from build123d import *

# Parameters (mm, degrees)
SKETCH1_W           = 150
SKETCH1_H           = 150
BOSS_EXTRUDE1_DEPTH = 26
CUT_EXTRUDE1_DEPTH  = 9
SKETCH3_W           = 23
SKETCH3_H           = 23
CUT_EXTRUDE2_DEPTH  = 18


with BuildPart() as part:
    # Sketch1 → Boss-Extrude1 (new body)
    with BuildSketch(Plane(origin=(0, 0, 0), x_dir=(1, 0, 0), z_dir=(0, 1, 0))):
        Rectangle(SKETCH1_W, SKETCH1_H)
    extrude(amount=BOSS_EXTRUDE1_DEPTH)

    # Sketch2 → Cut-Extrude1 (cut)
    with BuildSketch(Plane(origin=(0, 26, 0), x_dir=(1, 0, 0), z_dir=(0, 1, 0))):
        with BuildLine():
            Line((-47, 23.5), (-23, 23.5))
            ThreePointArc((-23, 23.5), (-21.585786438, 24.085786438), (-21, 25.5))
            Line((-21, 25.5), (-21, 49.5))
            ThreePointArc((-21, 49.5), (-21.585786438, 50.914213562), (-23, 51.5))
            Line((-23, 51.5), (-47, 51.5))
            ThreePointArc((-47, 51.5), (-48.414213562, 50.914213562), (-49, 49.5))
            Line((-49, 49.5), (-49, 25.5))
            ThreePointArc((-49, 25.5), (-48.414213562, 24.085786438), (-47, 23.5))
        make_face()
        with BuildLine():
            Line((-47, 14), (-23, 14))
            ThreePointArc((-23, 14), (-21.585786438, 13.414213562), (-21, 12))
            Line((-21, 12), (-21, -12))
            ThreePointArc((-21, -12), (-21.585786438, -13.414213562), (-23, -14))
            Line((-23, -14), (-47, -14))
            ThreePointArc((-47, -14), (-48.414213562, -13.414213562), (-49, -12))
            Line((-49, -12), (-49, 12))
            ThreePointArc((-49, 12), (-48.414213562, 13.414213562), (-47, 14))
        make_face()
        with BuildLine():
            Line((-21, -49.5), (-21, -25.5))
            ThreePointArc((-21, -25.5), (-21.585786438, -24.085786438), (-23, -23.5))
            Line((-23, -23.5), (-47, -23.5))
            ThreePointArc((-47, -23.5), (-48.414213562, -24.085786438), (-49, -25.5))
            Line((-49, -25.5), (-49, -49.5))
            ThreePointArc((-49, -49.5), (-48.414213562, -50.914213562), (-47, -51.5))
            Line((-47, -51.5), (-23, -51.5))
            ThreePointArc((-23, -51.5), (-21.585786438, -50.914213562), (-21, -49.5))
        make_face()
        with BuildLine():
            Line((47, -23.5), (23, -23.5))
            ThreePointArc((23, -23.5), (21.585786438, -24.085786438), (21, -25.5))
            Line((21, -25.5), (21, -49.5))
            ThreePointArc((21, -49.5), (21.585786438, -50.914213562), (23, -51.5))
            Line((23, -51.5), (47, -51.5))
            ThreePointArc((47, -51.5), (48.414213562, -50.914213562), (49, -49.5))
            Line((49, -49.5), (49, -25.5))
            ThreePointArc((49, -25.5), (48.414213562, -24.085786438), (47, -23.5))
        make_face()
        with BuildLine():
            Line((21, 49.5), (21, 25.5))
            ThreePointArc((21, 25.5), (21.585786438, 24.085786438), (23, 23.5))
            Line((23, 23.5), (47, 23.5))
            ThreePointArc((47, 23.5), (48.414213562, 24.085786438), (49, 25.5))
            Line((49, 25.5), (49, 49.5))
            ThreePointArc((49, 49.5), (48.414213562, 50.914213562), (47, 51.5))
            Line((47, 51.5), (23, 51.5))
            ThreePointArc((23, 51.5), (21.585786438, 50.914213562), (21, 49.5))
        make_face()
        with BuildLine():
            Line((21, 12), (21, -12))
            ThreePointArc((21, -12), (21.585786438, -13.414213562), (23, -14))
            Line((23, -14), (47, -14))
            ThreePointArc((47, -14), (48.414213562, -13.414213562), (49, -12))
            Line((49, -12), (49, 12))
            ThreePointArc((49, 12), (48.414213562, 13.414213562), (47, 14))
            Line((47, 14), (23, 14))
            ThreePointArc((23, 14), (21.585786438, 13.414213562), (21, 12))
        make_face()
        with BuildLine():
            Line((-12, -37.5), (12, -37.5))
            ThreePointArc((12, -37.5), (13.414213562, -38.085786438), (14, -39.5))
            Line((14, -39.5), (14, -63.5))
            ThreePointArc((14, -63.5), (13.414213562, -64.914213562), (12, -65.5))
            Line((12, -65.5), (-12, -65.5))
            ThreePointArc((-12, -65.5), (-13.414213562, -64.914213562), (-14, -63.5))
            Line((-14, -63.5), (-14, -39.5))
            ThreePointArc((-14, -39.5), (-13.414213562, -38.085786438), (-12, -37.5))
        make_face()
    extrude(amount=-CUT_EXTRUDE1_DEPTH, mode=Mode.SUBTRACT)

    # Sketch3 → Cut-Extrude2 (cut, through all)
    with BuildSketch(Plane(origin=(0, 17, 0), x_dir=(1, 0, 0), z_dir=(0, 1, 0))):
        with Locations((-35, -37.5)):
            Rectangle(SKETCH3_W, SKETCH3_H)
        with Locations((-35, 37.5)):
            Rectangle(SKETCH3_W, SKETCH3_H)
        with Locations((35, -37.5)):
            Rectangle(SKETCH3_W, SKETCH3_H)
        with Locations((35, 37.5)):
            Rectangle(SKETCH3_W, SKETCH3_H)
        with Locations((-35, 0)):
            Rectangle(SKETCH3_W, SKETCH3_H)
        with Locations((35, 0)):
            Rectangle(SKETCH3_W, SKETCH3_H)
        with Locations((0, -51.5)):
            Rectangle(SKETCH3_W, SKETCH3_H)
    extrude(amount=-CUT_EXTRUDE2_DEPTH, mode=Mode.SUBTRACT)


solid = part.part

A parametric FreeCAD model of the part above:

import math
import FreeCAD as App
import Part
import Sketcher
from FreeCAD import Vector

doc = App.newDocument("Part")
body = doc.addObject("PartDesign::Body", "Body")

# Sketch on XZ plane
sketch1 = body.newObject("Sketcher::SketchObject", "Sketch")
sketch1.AttachmentSupport = (doc.getObject("XZ_Plane"), [""])
sketch1.MapMode = "FlatFace"
sketch1.addGeometry([
    Part.LineSegment(Vector(-75, -75, 0), Vector(-75, 75, 0)),
    Part.LineSegment(Vector(-75, 75, 0), Vector(75, 75, 0)),
    Part.LineSegment(Vector(75, 75, 0), Vector(75, -75, 0)),
    Part.LineSegment(Vector(75, -75, 0), Vector(-75, -75, 0)),
], False)
sketch1.addConstraint([
    Sketcher.Constraint("Coincident", 0, 2, 1, 1),
    Sketcher.Constraint("Coincident", 1, 2, 2, 1),
    Sketcher.Constraint("Coincident", 2, 2, 3, 1),
    Sketcher.Constraint("Coincident", 3, 2, 0, 1),
    Sketcher.Constraint("Vertical", 0),
    Sketcher.Constraint("Horizontal", 1),
    Sketcher.Constraint("Vertical", 2),
    Sketcher.Constraint("Horizontal", 3),
    Sketcher.Constraint("Symmetric", 0, 2, 2, 2, -1, 1),
    Sketcher.Constraint("Equal", 3, 0),
    Sketcher.Constraint("DistanceX", 1, 1, 1, 2, 150.0),
])
pad1 = body.newObject("PartDesign::Pad", "Pad")
pad1.Profile = sketch1
pad1.Length = 26
pad1.Reversed = True

# Sketch on XZ plane
sketch2 = body.newObject("Sketcher::SketchObject", "Sketch001")
sketch2.AttachmentSupport = (doc.getObject("XZ_Plane"), [""])
sketch2.MapMode = "FlatFace"
sketch2.AttachmentOffset = App.Placement(Vector(0, 0, -26), App.Rotation())
sketch2.addGeometry([
    Part.LineSegment(Vector(-47, -23.5, 0), Vector(-23, -23.5, 0)),  # 0
    Part.ArcOfCircle(Part.Circle(Vector(-23, -25.5, 0), Vector(0, 0, 1), 2), math.radians(0), math.radians(90)),  # 1
    Part.LineSegment(Vector(-21, -25.5, 0), Vector(-21, -49.5, 0)),  # 2
    Part.ArcOfCircle(Part.Circle(Vector(-23, -49.5, 0), Vector(0, 0, 1), 2), math.radians(-90), math.radians(0)),  # 3
    Part.LineSegment(Vector(-23, -51.5, 0), Vector(-47, -51.5, 0)),  # 4
    Part.ArcOfCircle(Part.Circle(Vector(-47, -49.5, 0), Vector(0, 0, 1), 2), math.radians(-180), math.radians(-90)),  # 5
    Part.LineSegment(Vector(-49, -49.5, 0), Vector(-49, -25.5, 0)),  # 6
    Part.ArcOfCircle(Part.Circle(Vector(-47, -25.5, 0), Vector(0, 0, 1), 2), math.radians(90), math.radians(180)),  # 7
    Part.LineSegment(Vector(-23, -14, 0), Vector(-47, -14, 0)),  # 8
    Part.ArcOfCircle(Part.Circle(Vector(-47, -12, 0), Vector(0, 0, 1), 2), math.radians(-180), math.radians(-90)),  # 9
    Part.LineSegment(Vector(-49, -12, 0), Vector(-49, 12, 0)),  # 10
    Part.ArcOfCircle(Part.Circle(Vector(-47, 12, 0), Vector(0, 0, 1), 2), math.radians(90), math.radians(180)),  # 11
    Part.LineSegment(Vector(-47, 14, 0), Vector(-23, 14, 0)),  # 12
    Part.ArcOfCircle(Part.Circle(Vector(-23, 12, 0), Vector(0, 0, 1), 2), math.radians(0), math.radians(90)),  # 13
    Part.LineSegment(Vector(-21, 12, 0), Vector(-21, -12, 0)),  # 14
    Part.ArcOfCircle(Part.Circle(Vector(-23, -12, 0), Vector(0, 0, 1), 2), math.radians(-90), math.radians(0)),  # 15
    Part.LineSegment(Vector(-21, 49.5, 0), Vector(-21, 25.5, 0)),  # 16
    Part.ArcOfCircle(Part.Circle(Vector(-23, 25.5, 0), Vector(0, 0, 1), 2), math.radians(-90), math.radians(0)),  # 17
    Part.LineSegment(Vector(-23, 23.5, 0), Vector(-47, 23.5, 0)),  # 18
    Part.ArcOfCircle(Part.Circle(Vector(-47, 25.5, 0), Vector(0, 0, 1), 2), math.radians(-180), math.radians(-90)),  # 19
    Part.LineSegment(Vector(-49, 25.5, 0), Vector(-49, 49.5, 0)),  # 20
    Part.ArcOfCircle(Part.Circle(Vector(-47, 49.5, 0), Vector(0, 0, 1), 2), math.radians(90), math.radians(180)),  # 21
    Part.LineSegment(Vector(-47, 51.5, 0), Vector(-23, 51.5, 0)),  # 22
    Part.ArcOfCircle(Part.Circle(Vector(-23, 49.5, 0), Vector(0, 0, 1), 2), math.radians(0), math.radians(90)),  # 23
    Part.LineSegment(Vector(47, 23.5, 0), Vector(23, 23.5, 0)),  # 24
    Part.ArcOfCircle(Part.Circle(Vector(23, 25.5, 0), Vector(0, 0, 1), 2), math.radians(-180), math.radians(-90)),  # 25
    Part.LineSegment(Vector(21, 25.5, 0), Vector(21, 49.5, 0)),  # 26
    Part.ArcOfCircle(Part.Circle(Vector(23, 49.5, 0), Vector(0, 0, 1), 2), math.radians(90), math.radians(180)),  # 27
    Part.LineSegment(Vector(23, 51.5, 0), Vector(47, 51.5, 0)),  # 28
    Part.ArcOfCircle(Part.Circle(Vector(47, 49.5, 0), Vector(0, 0, 1), 2), math.radians(0), math.radians(90)),  # 29
    Part.LineSegment(Vector(49, 49.5, 0), Vector(49, 25.5, 0)),  # 30
    Part.ArcOfCircle(Part.Circle(Vector(47, 25.5, 0), Vector(0, 0, 1), 2), math.radians(-90), math.radians(0)),  # 31
    Part.LineSegment(Vector(21, -49.5, 0), Vector(21, -25.5, 0)),  # 32
    Part.ArcOfCircle(Part.Circle(Vector(23, -25.5, 0), Vector(0, 0, 1), 2), math.radians(90), math.radians(180)),  # 33
    Part.LineSegment(Vector(23, -23.5, 0), Vector(47, -23.5, 0)),  # 34
    Part.ArcOfCircle(Part.Circle(Vector(47, -25.5, 0), Vector(0, 0, 1), 2), math.radians(0), math.radians(90)),  # 35
    Part.LineSegment(Vector(49, -25.5, 0), Vector(49, -49.5, 0)),  # 36
    Part.ArcOfCircle(Part.Circle(Vector(47, -49.5, 0), Vector(0, 0, 1), 2), math.radians(-90), math.radians(0)),  # 37
    Part.LineSegment(Vector(47, -51.5, 0), Vector(23, -51.5, 0)),  # 38
    Part.ArcOfCircle(Part.Circle(Vector(23, -49.5, 0), Vector(0, 0, 1), 2), math.radians(-180), math.radians(-90)),  # 39
    Part.LineSegment(Vector(21, -12, 0), Vector(21, 12, 0)),  # 40
    Part.ArcOfCircle(Part.Circle(Vector(23, 12, 0), Vector(0, 0, 1), 2), math.radians(90), math.radians(180)),  # 41
    Part.LineSegment(Vector(23, 14, 0), Vector(47, 14, 0)),  # 42
    Part.ArcOfCircle(Part.Circle(Vector(47, 12, 0), Vector(0, 0, 1), 2), math.radians(0), math.radians(90)),  # 43
    Part.LineSegment(Vector(49, 12, 0), Vector(49, -12, 0)),  # 44
    Part.ArcOfCircle(Part.Circle(Vector(47, -12, 0), Vector(0, 0, 1), 2), math.radians(-90), math.radians(0)),  # 45
    Part.LineSegment(Vector(47, -14, 0), Vector(23, -14, 0)),  # 46
    Part.ArcOfCircle(Part.Circle(Vector(23, -12, 0), Vector(0, 0, 1), 2), math.radians(-180), math.radians(-90)),  # 47
    Part.LineSegment(Vector(12, 37.5, 0), Vector(-12, 37.5, 0)),  # 48
    Part.ArcOfCircle(Part.Circle(Vector(-12, 39.5, 0), Vector(0, 0, 1), 2), math.radians(-180), math.radians(-90)),  # 49
    Part.LineSegment(Vector(-14, 39.5, 0), Vector(-14, 63.5, 0)),  # 50
    Part.ArcOfCircle(Part.Circle(Vector(-12, 63.5, 0), Vector(0, 0, 1), 2), math.radians(90), math.radians(180)),  # 51
    Part.LineSegment(Vector(-12, 65.5, 0), Vector(12, 65.5, 0)),  # 52
    Part.ArcOfCircle(Part.Circle(Vector(12, 63.5, 0), Vector(0, 0, 1), 2), math.radians(0), math.radians(90)),  # 53
    Part.LineSegment(Vector(14, 63.5, 0), Vector(14, 39.5, 0)),  # 54
    Part.ArcOfCircle(Part.Circle(Vector(12, 39.5, 0), Vector(0, 0, 1), 2), math.radians(-90), math.radians(0)),  # 55
], False)
sketch2.addConstraint([
    Sketcher.Constraint("Tangent", 0, 2, 1, 2),
    Sketcher.Constraint("Tangent", 1, 1, 2, 1),
    Sketcher.Constraint("Tangent", 2, 2, 3, 2),
    Sketcher.Constraint("Tangent", 3, 1, 4, 1),
    Sketcher.Constraint("Tangent", 4, 2, 5, 2),
    Sketcher.Constraint("Tangent", 5, 1, 6, 1),
    Sketcher.Constraint("Tangent", 6, 2, 7, 2),
    Sketcher.Constraint("Tangent", 7, 1, 0, 1),
    Sketcher.Constraint("Tangent", 8, 2, 9, 2),
    Sketcher.Constraint("Tangent", 9, 1, 10, 1),
    Sketcher.Constraint("Tangent", 10, 2, 11, 2),
    Sketcher.Constraint("Tangent", 11, 1, 12, 1),
    Sketcher.Constraint("Tangent", 12, 2, 13, 2),
    Sketcher.Constraint("Tangent", 13, 1, 14, 1),
    Sketcher.Constraint("Tangent", 14, 2, 15, 2),
    Sketcher.Constraint("Tangent", 15, 1, 8, 1),
    Sketcher.Constraint("Tangent", 16, 2, 17, 2),
    Sketcher.Constraint("Tangent", 17, 1, 18, 1),
    Sketcher.Constraint("Tangent", 18, 2, 19, 2),
    Sketcher.Constraint("Tangent", 19, 1, 20, 1),
    Sketcher.Constraint("Tangent", 20, 2, 21, 2),
    Sketcher.Constraint("Tangent", 21, 1, 22, 1),
    Sketcher.Constraint("Tangent", 22, 2, 23, 2),
    Sketcher.Constraint("Tangent", 23, 1, 16, 1),
    Sketcher.Constraint("Tangent", 24, 2, 25, 2),
    Sketcher.Constraint("Tangent", 25, 1, 26, 1),
    Sketcher.Constraint("Tangent", 26, 2, 27, 2),
    Sketcher.Constraint("Tangent", 27, 1, 28, 1),
    Sketcher.Constraint("Tangent", 28, 2, 29, 2),
    Sketcher.Constraint("Tangent", 29, 1, 30, 1),
    Sketcher.Constraint("Tangent", 30, 2, 31, 2),
    Sketcher.Constraint("Tangent", 31, 1, 24, 1),
    Sketcher.Constraint("Tangent", 32, 2, 33, 2),
    Sketcher.Constraint("Tangent", 33, 1, 34, 1),
    Sketcher.Constraint("Tangent", 34, 2, 35, 2),
    Sketcher.Constraint("Tangent", 35, 1, 36, 1),
    Sketcher.Constraint("Tangent", 36, 2, 37, 2),
    Sketcher.Constraint("Tangent", 37, 1, 38, 1),
    Sketcher.Constraint("Tangent", 38, 2, 39, 2),
    Sketcher.Constraint("Tangent", 39, 1, 32, 1),
    Sketcher.Constraint("Tangent", 40, 2, 41, 2),
    Sketcher.Constraint("Tangent", 41, 1, 42, 1),
    Sketcher.Constraint("Tangent", 42, 2, 43, 2),
    Sketcher.Constraint("Tangent", 43, 1, 44, 1),
    Sketcher.Constraint("Tangent", 44, 2, 45, 2),
    Sketcher.Constraint("Tangent", 45, 1, 46, 1),
    Sketcher.Constraint("Tangent", 46, 2, 47, 2),
    Sketcher.Constraint("Tangent", 47, 1, 40, 1),
    Sketcher.Constraint("Tangent", 48, 2, 49, 2),
    Sketcher.Constraint("Tangent", 49, 1, 50, 1),
    Sketcher.Constraint("Tangent", 50, 2, 51, 2),
    Sketcher.Constraint("Tangent", 51, 1, 52, 1),
    Sketcher.Constraint("Tangent", 52, 2, 53, 2),
    Sketcher.Constraint("Tangent", 53, 1, 54, 1),
    Sketcher.Constraint("Tangent", 54, 2, 55, 2),
    Sketcher.Constraint("Tangent", 55, 1, 48, 1),
    Sketcher.Constraint("Horizontal", 0),
    Sketcher.Constraint("Vertical", 2),
    Sketcher.Constraint("Horizontal", 4),
    Sketcher.Constraint("Vertical", 6),
    Sketcher.Constraint("Horizontal", 8),
    Sketcher.Constraint("Vertical", 10),
    Sketcher.Constraint("Horizontal", 12),
    Sketcher.Constraint("Vertical", 14),
    Sketcher.Constraint("Vertical", 16),
    Sketcher.Constraint("Horizontal", 18),
    Sketcher.Constraint("Vertical", 20),
    Sketcher.Constraint("Horizontal", 22),
    Sketcher.Constraint("Horizontal", 24),
    Sketcher.Constraint("Vertical", 26),
    Sketcher.Constraint("Horizontal", 28),
    Sketcher.Constraint("Vertical", 30),
    Sketcher.Constraint("Vertical", 32),
    Sketcher.Constraint("Horizontal", 34),
    Sketcher.Constraint("Vertical", 36),
    Sketcher.Constraint("Horizontal", 38),
    Sketcher.Constraint("Vertical", 40),
    Sketcher.Constraint("Horizontal", 42),
    Sketcher.Constraint("Vertical", 44),
    Sketcher.Constraint("Horizontal", 46),
    Sketcher.Constraint("Horizontal", 48),
    Sketcher.Constraint("Vertical", 50),
    Sketcher.Constraint("Horizontal", 52),
    Sketcher.Constraint("Vertical", 54),
    Sketcher.Constraint("Equal", 1, 3),
    Sketcher.Constraint("Equal", 3, 5),
    Sketcher.Constraint("Equal", 5, 7),
    Sketcher.Constraint("Equal", 7, 9),
    Sketcher.Constraint("Equal", 9, 11),
    Sketcher.Constraint("Equal", 11, 13),
    Sketcher.Constraint("Equal", 13, 15),
    Sketcher.Constraint("Equal", 15, 17),
    Sketcher.Constraint("Equal", 17, 19),
    Sketcher.Constraint("Equal", 19, 21),
    Sketcher.Constraint("Equal", 21, 23),
    Sketcher.Constraint("Equal", 23, 25),
    Sketcher.Constraint("Equal", 25, 27),
    Sketcher.Constraint("Equal", 27, 29),
    Sketcher.Constraint("Equal", 29, 31),
    Sketcher.Constraint("Equal", 31, 33),
    Sketcher.Constraint("Equal", 33, 35),
    Sketcher.Constraint("Equal", 35, 37),
    Sketcher.Constraint("Equal", 37, 39),
    Sketcher.Constraint("Equal", 39, 41),
    Sketcher.Constraint("Equal", 41, 43),
    Sketcher.Constraint("Equal", 43, 45),
    Sketcher.Constraint("Equal", 45, 47),
    Sketcher.Constraint("Equal", 47, 49),
    Sketcher.Constraint("Equal", 49, 51),
    Sketcher.Constraint("Equal", 51, 53),
    Sketcher.Constraint("Equal", 53, 55),
    Sketcher.Constraint("Symmetric", 1, 3, 25, 3, -1, 1),
    Sketcher.Constraint("Symmetric", 5, 3, 29, 3, -1, 1),
    Sketcher.Constraint("Symmetric", 17, 3, 33, 3, -1, 1),
    Sketcher.Constraint("Symmetric", 21, 3, 37, 3, -1, 1),
    Sketcher.Constraint("Symmetric", 15, 3, 41, 3, -1, 1),
    Sketcher.Constraint("Symmetric", 11, 3, 45, 3, -1, 1),
    Sketcher.Constraint("Symmetric", 17, 3, 25, 3, -2),
    Sketcher.Constraint("Symmetric", 21, 3, 29, 3, -2),
    Sketcher.Constraint("Horizontal", 13, 3, 41, 3),
    Sketcher.Constraint("Vertical", 7, 3, 9, 3),
    Sketcher.Constraint("Vertical", 3, 3, 13, 3),
    Sketcher.Constraint("Equal", 46, 48),
    Sketcher.Constraint("Equal", 52, 2),
    Sketcher.Constraint("Equal", 6, 10),
    Sketcher.Constraint("Equal", 44, 50),
    Sketcher.Constraint("Radius", 1, 2.0),
    Sketcher.Constraint("DistanceX", 0, 1, 0, 2, 24.0),
    Sketcher.Constraint("DistanceX", 1, 3, -1, 1, 23.0),
    Sketcher.Constraint("DistanceX", 49, 3, -1, 1, 12.0),
    Sketcher.Constraint("DistanceY", 1, 3, -1, 1, 25.5),
    Sketcher.Constraint("DistanceY", -1, 1, 49, 3, 39.5),
])
pocket1 = body.newObject("PartDesign::Pocket", "Pocket")
pocket1.Profile = sketch2
pocket1.Length = 9
pocket1.Reversed = True

# Sketch on XZ plane
sketch3 = body.newObject("Sketcher::SketchObject", "Sketch002")
sketch3.AttachmentSupport = (doc.getObject("XZ_Plane"), [""])
sketch3.MapMode = "FlatFace"
sketch3.AttachmentOffset = App.Placement(Vector(0, 0, -17), App.Rotation())
sketch3.addGeometry([
    Part.LineSegment(Vector(-46, 26, 0), Vector(-46, 49, 0)),  # 0
    Part.LineSegment(Vector(-46, 49, 0), Vector(-24, 49, 0)),  # 1
    Part.LineSegment(Vector(-24, 49, 0), Vector(-24, 26, 0)),  # 2
    Part.LineSegment(Vector(-24, 26, 0), Vector(-46, 26, 0)),  # 3
    Part.LineSegment(Vector(-46, -49, 0), Vector(-46, -26, 0)),  # 4
    Part.LineSegment(Vector(-46, -26, 0), Vector(-24, -26, 0)),  # 5
    Part.LineSegment(Vector(-24, -26, 0), Vector(-24, -49, 0)),  # 6
    Part.LineSegment(Vector(-24, -49, 0), Vector(-46, -49, 0)),  # 7
    Part.LineSegment(Vector(24, 26, 0), Vector(24, 49, 0)),  # 8
    Part.LineSegment(Vector(24, 49, 0), Vector(46, 49, 0)),  # 9
    Part.LineSegment(Vector(46, 49, 0), Vector(46, 26, 0)),  # 10
    Part.LineSegment(Vector(46, 26, 0), Vector(24, 26, 0)),  # 11
    Part.LineSegment(Vector(24, -49, 0), Vector(24, -26, 0)),  # 12
    Part.LineSegment(Vector(24, -26, 0), Vector(46, -26, 0)),  # 13
    Part.LineSegment(Vector(46, -26, 0), Vector(46, -49, 0)),  # 14
    Part.LineSegment(Vector(46, -49, 0), Vector(24, -49, 0)),  # 15
    Part.LineSegment(Vector(-46, -12, 0), Vector(-46, 12, 0)),  # 16
    Part.LineSegment(Vector(-46, 12, 0), Vector(-24, 12, 0)),  # 17
    Part.LineSegment(Vector(-24, 12, 0), Vector(-24, -12, 0)),  # 18
    Part.LineSegment(Vector(-24, -12, 0), Vector(-46, -12, 0)),  # 19
    Part.LineSegment(Vector(24, -12, 0), Vector(24, 12, 0)),  # 20
    Part.LineSegment(Vector(24, 12, 0), Vector(46, 12, 0)),  # 21
    Part.LineSegment(Vector(46, 12, 0), Vector(46, -12, 0)),  # 22
    Part.LineSegment(Vector(46, -12, 0), Vector(24, -12, 0)),  # 23
    Part.LineSegment(Vector(-12, 40, 0), Vector(-12, 63, 0)),  # 24
    Part.LineSegment(Vector(-12, 63, 0), Vector(12, 63, 0)),  # 25
    Part.LineSegment(Vector(12, 63, 0), Vector(12, 40, 0)),  # 26
    Part.LineSegment(Vector(12, 40, 0), Vector(-12, 40, 0)),  # 27
], False)
sketch3.addConstraint([
    Sketcher.Constraint("Coincident", 0, 2, 1, 1),
    Sketcher.Constraint("Coincident", 1, 2, 2, 1),
    Sketcher.Constraint("Coincident", 2, 2, 3, 1),
    Sketcher.Constraint("Coincident", 3, 2, 0, 1),
    Sketcher.Constraint("Coincident", 4, 2, 5, 1),
    Sketcher.Constraint("Coincident", 5, 2, 6, 1),
    Sketcher.Constraint("Coincident", 6, 2, 7, 1),
    Sketcher.Constraint("Coincident", 7, 2, 4, 1),
    Sketcher.Constraint("Coincident", 8, 2, 9, 1),
    Sketcher.Constraint("Coincident", 9, 2, 10, 1),
    Sketcher.Constraint("Coincident", 10, 2, 11, 1),
    Sketcher.Constraint("Coincident", 11, 2, 8, 1),
    Sketcher.Constraint("Coincident", 12, 2, 13, 1),
    Sketcher.Constraint("Coincident", 13, 2, 14, 1),
    Sketcher.Constraint("Coincident", 14, 2, 15, 1),
    Sketcher.Constraint("Coincident", 15, 2, 12, 1),
    Sketcher.Constraint("Coincident", 16, 2, 17, 1),
    Sketcher.Constraint("Coincident", 17, 2, 18, 1),
    Sketcher.Constraint("Coincident", 18, 2, 19, 1),
    Sketcher.Constraint("Coincident", 19, 2, 16, 1),
    Sketcher.Constraint("Coincident", 20, 2, 21, 1),
    Sketcher.Constraint("Coincident", 21, 2, 22, 1),
    Sketcher.Constraint("Coincident", 22, 2, 23, 1),
    Sketcher.Constraint("Coincident", 23, 2, 20, 1),
    Sketcher.Constraint("Coincident", 24, 2, 25, 1),
    Sketcher.Constraint("Coincident", 25, 2, 26, 1),
    Sketcher.Constraint("Coincident", 26, 2, 27, 1),
    Sketcher.Constraint("Coincident", 27, 2, 24, 1),
    Sketcher.Constraint("Vertical", 0),
    Sketcher.Constraint("Horizontal", 1),
    Sketcher.Constraint("Vertical", 2),
    Sketcher.Constraint("Horizontal", 3),
    Sketcher.Constraint("Vertical", 4),
    Sketcher.Constraint("Horizontal", 5),
    Sketcher.Constraint("Vertical", 6),
    Sketcher.Constraint("Horizontal", 7),
    Sketcher.Constraint("Vertical", 8),
    Sketcher.Constraint("Horizontal", 9),
    Sketcher.Constraint("Vertical", 10),
    Sketcher.Constraint("Horizontal", 11),
    Sketcher.Constraint("Vertical", 12),
    Sketcher.Constraint("Horizontal", 13),
    Sketcher.Constraint("Vertical", 14),
    Sketcher.Constraint("Horizontal", 15),
    Sketcher.Constraint("Vertical", 16),
    Sketcher.Constraint("Horizontal", 17),
    Sketcher.Constraint("Vertical", 18),
    Sketcher.Constraint("Horizontal", 19),
    Sketcher.Constraint("Vertical", 20),
    Sketcher.Constraint("Horizontal", 21),
    Sketcher.Constraint("Vertical", 22),
    Sketcher.Constraint("Horizontal", 23),
    Sketcher.Constraint("Vertical", 24),
    Sketcher.Constraint("Horizontal", 25),
    Sketcher.Constraint("Vertical", 26),
    Sketcher.Constraint("Horizontal", 27),
    Sketcher.Constraint("Symmetric", 6, 2, 8, 2, -1, 1),
    Sketcher.Constraint("Symmetric", 4, 2, 10, 2, -1, 1),
    Sketcher.Constraint("Symmetric", 2, 2, 12, 2, -1, 1),
    Sketcher.Constraint("Symmetric", 0, 2, 14, 2, -1, 1),
    Sketcher.Constraint("Symmetric", 18, 2, 20, 2, -1, 1),
    Sketcher.Constraint("Symmetric", 16, 2, 22, 2, -1, 1),
    Sketcher.Constraint("Symmetric", 1, 2, 8, 2, -2),
    Sketcher.Constraint("Symmetric", 3, 2, 10, 2, -2),
    Sketcher.Constraint("Horizontal", 17, 2, 20, 2),
    Sketcher.Constraint("Vertical", 7, 2, 16, 2),
    Sketcher.Constraint("Vertical", 6, 2, 17, 2),
    Sketcher.Constraint("Equal", 23, 25),
    Sketcher.Constraint("Equal", 27, 0),
    Sketcher.Constraint("Equal", 14, 16),
    Sketcher.Constraint("Equal", 22, 24),
    Sketcher.Constraint("DistanceX", 1, 1, 1, 2, 23.0),
    Sketcher.Constraint("DistanceY", -1, 1, 0, 2, 49.0),
    Sketcher.Constraint("DistanceY", -1, 1, 24, 2, 63.0),
    Sketcher.Constraint("DistanceX", 1, 2, 8, 2, 47.0),
    Sketcher.Constraint("DistanceX", 1, 2, 24, 2, 12.0),
])
pocket2 = body.newObject("PartDesign::Pocket", "Pocket001")
pocket2.Profile = sketch3
pocket2.Type = "ThroughAll"
pocket2.Reversed = True

doc.recompute()
